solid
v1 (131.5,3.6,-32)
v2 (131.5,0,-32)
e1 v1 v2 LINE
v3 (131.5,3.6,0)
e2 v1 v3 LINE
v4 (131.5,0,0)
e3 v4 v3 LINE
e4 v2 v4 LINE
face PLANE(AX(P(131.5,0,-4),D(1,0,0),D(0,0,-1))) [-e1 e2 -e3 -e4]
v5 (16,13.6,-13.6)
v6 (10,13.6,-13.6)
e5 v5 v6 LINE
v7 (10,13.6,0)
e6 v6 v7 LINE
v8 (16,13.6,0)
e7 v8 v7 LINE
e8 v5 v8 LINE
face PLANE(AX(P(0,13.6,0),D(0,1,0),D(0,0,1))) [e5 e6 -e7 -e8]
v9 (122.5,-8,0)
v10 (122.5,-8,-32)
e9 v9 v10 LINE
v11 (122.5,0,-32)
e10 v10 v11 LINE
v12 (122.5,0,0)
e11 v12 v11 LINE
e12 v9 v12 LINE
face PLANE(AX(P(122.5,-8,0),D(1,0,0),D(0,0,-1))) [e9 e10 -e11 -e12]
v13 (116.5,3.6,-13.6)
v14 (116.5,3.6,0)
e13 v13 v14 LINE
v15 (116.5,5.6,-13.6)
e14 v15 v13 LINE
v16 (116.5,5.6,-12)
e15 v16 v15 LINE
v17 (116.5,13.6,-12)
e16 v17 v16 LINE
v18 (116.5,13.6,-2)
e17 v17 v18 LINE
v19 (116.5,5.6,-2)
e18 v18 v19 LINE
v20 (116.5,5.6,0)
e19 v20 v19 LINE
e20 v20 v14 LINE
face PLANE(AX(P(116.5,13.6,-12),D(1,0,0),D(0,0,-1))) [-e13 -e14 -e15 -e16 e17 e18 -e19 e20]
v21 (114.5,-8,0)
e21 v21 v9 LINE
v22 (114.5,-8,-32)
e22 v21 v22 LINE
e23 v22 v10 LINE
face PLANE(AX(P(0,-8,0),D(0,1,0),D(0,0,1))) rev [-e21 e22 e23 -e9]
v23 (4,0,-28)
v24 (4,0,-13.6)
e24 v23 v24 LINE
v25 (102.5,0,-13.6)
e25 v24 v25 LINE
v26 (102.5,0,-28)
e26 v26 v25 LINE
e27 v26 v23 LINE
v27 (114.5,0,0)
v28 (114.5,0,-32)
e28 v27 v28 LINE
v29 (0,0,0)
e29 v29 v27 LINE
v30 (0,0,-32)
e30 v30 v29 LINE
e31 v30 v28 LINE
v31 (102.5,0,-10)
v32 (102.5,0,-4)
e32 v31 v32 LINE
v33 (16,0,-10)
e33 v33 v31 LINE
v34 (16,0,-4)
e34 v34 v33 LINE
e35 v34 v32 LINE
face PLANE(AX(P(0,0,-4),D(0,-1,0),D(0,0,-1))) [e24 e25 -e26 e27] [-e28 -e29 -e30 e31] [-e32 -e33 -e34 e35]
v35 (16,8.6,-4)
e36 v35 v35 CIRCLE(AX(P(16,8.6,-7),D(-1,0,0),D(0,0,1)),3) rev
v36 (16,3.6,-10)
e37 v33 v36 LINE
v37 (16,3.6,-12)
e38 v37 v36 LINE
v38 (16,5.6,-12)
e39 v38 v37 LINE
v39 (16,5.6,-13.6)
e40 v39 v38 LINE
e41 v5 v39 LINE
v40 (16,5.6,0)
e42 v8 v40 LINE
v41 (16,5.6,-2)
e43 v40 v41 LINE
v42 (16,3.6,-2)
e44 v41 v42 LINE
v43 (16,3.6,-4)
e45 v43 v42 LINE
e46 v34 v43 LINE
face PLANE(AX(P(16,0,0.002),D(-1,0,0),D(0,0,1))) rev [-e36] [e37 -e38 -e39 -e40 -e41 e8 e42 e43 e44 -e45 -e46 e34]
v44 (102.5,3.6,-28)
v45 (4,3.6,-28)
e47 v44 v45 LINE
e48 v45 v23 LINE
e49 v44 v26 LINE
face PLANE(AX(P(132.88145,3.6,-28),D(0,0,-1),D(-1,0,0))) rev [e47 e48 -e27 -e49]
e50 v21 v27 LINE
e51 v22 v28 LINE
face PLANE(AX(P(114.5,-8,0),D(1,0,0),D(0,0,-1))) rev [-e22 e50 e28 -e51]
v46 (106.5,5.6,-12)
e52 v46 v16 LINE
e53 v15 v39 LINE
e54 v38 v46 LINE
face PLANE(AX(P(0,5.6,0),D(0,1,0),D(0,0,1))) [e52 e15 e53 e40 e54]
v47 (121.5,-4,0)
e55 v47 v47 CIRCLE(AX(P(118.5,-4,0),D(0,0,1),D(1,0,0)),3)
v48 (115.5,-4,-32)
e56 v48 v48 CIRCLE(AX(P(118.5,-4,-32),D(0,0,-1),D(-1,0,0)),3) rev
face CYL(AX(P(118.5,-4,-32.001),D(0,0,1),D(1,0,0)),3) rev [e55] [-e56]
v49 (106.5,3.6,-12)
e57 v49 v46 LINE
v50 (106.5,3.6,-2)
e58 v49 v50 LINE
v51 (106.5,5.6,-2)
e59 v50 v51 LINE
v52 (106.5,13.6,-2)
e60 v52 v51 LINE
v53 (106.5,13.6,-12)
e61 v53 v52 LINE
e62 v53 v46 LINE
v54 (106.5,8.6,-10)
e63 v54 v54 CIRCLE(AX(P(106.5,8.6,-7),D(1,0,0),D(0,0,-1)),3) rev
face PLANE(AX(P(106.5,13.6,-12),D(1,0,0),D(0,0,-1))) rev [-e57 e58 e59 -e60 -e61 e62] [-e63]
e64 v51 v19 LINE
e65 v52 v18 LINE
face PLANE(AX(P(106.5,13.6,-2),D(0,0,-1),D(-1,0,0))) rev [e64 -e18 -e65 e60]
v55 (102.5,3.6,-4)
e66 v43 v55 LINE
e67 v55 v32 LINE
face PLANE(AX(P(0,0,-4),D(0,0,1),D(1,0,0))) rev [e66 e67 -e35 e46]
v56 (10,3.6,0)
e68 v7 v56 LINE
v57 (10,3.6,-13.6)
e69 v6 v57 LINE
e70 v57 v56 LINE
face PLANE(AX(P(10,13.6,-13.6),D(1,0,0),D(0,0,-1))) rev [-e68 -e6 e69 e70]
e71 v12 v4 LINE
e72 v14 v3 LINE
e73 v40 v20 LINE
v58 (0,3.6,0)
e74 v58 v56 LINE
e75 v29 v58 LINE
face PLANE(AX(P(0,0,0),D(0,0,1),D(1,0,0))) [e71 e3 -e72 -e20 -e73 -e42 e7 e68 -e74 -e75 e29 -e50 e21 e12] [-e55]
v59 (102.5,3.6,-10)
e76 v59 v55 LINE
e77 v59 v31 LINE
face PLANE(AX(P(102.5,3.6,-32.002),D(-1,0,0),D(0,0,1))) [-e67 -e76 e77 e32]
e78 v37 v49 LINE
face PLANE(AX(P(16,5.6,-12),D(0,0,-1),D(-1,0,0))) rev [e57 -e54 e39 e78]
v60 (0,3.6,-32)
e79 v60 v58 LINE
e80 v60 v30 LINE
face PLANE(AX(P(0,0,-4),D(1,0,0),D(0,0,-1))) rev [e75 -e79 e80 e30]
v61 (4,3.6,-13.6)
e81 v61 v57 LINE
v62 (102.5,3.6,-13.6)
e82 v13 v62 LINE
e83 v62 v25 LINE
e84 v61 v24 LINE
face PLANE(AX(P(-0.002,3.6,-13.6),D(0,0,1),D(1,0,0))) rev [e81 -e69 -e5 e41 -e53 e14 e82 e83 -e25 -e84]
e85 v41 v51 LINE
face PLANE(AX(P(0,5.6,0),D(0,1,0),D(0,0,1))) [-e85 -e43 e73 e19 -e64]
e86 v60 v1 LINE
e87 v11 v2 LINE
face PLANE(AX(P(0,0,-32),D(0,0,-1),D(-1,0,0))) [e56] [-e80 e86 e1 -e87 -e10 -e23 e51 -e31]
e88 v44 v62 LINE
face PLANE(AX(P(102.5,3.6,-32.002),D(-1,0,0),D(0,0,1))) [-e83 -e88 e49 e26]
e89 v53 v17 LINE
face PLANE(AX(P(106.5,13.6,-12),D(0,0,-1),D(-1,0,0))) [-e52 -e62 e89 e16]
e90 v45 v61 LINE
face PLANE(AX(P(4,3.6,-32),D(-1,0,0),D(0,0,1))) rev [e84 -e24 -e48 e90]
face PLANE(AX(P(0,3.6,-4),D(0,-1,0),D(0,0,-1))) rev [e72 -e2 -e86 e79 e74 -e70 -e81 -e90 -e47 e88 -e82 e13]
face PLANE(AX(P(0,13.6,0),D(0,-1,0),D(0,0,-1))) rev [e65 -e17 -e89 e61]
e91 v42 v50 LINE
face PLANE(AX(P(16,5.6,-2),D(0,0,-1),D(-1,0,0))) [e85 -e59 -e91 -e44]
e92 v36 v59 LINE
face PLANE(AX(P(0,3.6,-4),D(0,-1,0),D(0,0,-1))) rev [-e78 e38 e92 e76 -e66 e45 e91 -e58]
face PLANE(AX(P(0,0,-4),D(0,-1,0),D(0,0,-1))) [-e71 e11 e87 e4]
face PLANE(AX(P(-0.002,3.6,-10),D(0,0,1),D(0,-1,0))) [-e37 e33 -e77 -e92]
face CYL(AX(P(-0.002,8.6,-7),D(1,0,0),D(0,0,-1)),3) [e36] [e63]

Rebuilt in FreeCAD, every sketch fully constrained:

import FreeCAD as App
import Part
import Sketcher
Q = App.Units.Quantity

doc = App.newDocument("Part")
body = doc.addObject("PartDesign::Body", "Body")

sketch1 = body.newObject("Sketcher::SketchObject", "Sketch")
sketch1.AttachmentSupport = (doc.getObject("XY_Plane"), [""])
sketch1.MapMode = "FlatFace"
sketch1.addGeometry([
    Part.LineSegment(App.Vector(0, 3.6, 0), App.Vector(0, 0, 0)),
    Part.LineSegment(App.Vector(0, 0, 0), App.Vector(131.5, 0, 0)),
    Part.LineSegment(App.Vector(131.5, 0, 0), App.Vector(131.5, 3.6, 0)),
    Part.LineSegment(App.Vector(131.5, 3.6, 0), App.Vector(0, 3.6, 0)),
], False)
sketch1.addConstraint([
    Sketcher.Constraint("Coincident", 0, 2, 1, 1),
    Sketcher.Constraint("Coincident", 1, 2, 2, 1),
    Sketcher.Constraint("Coincident", 2, 2, 3, 1),
    Sketcher.Constraint("Coincident", 3, 2, 0, 1),
    Sketcher.Constraint("Vertical", 0),
    Sketcher.Constraint("Horizontal", 1),
    Sketcher.Constraint("Vertical", 2),
    Sketcher.Constraint("Horizontal", 3),
    Sketcher.Constraint("Coincident", 0, 2, -1, 1),
    Sketcher.Constraint("DistanceX", 1, 1, 1, 2, Q("131.5 mm")),
    Sketcher.Constraint("DistanceY", 0, 2, 0, 1, Q("3.6 mm")),
])
pad1 = body.newObject("PartDesign::Pad", "Pad")
pad1.Profile = sketch1
pad1.Length = 4
pad1.Reversed = True

sketch2 = body.newObject("Sketcher::SketchObject", "Sketch001")
sketch2.AttachmentSupport = (doc.getObject("XY_Plane"), [""])
sketch2.MapMode = "FlatFace"
sketch2.AttachmentOffset = App.Placement(App.Vector(0, 0, -4), App.Rotation())
sketch2.addGeometry([
    Part.LineSegment(App.Vector(4, 3.6, 0), App.Vector(4, 0, 0)),
    Part.LineSegment(App.Vector(4, 0, 0), App.Vector(0, 0, 0)),
    Part.LineSegment(App.Vector(0, 0, 0), App.Vector(0, 3.6, 0)),
    Part.LineSegment(App.Vector(0, 3.6, 0), App.Vector(4, 3.6, 0)),
], False)
sketch2.addConstraint([
    Sketcher.Constraint("Coincident", 0, 2, 1, 1),
    Sketcher.Constraint("Coincident", 1, 2, 2, 1),
    Sketcher.Constraint("Coincident", 2, 2, 3, 1),
    Sketcher.Constraint("Coincident", 3, 2, 0, 1),
    Sketcher.Constraint("Vertical", 0),
    Sketcher.Constraint("Horizontal", 1),
    Sketcher.Constraint("Vertical", 2),
    Sketcher.Constraint("Horizontal", 3),
    Sketcher.Constraint("Coincident", 1, 2, -1, 1),
    Sketcher.Constraint("DistanceX", 1, 2, 1, 1, Q("4 mm")),
    Sketcher.Constraint("DistanceY", 0, 2, 0, 1, Q("3.6 mm")),
])
pad2 = body.newObject("PartDesign::Pad", "Pad001")
pad2.Profile = sketch2
pad2.Length = 28
pad2.Reversed = True

sketch3 = body.newObject("Sketcher::SketchObject", "Sketch002")
sketch3.AttachmentSupport = (doc.getObject("XY_Plane"), [""])
sketch3.MapMode = "FlatFace"
sketch3.AttachmentOffset = App.Placement(App.Vector(0, 0, -4), App.Rotation())
sketch3.addGeometry([
    Part.LineSegment(App.Vector(131.5, 3.6, 0), App.Vector(131.5, 0, 0)),
    Part.LineSegment(App.Vector(131.5, 0, 0), App.Vector(127.5, 0, 0)),
    Part.LineSegment(App.Vector(127.5, 0, 0), App.Vector(127.5, 3.6, 0)),
    Part.LineSegment(App.Vector(127.5, 3.6, 0), App.Vector(131.5, 3.6, 0)),
], False)
sketch3.addConstraint([
    Sketcher.Constraint("Coincident", 0, 2, 1, 1),
    Sketcher.Constraint("Coincident", 1, 2, 2, 1),
    Sketcher.Constraint("Coincident", 2, 2, 3, 1),
    Sketcher.Constraint("Coincident", 3, 2, 0, 1),
    Sketcher.Constraint("Vertical", 0),
    Sketcher.Constraint("Horizontal", 1),
    Sketcher.Constraint("Vertical", 2),
    Sketcher.Constraint("Horizontal", 3),
    Sketcher.Constraint("PointOnObject", 0, 2, -1),
    Sketcher.Constraint("DistanceX", 1, 2, 1, 1, Q("4 mm")),
    Sketcher.Constraint("DistanceY", 0, 2, 0, 1, Q("3.6 mm")),
    Sketcher.Constraint("DistanceX", -1, 1, 0, 2, Q("131.5 mm")),
])
pad3 = body.newObject("PartDesign::Pad", "Pad002")
pad3.Profile = sketch3
pad3.Length = 28
pad3.Reversed = True

sketch4 = body.newObject("Sketcher::SketchObject", "Sketch003")
sketch4.AttachmentSupport = (doc.getObject("YZ_Plane"), [""])
sketch4.MapMode = "FlatFace"
sketch4.AttachmentOffset = App.Placement(App.Vector(0, 0, 4), App.Rotation())
sketch4.addGeometry([
    Part.LineSegment(App.Vector(3.6, -28, 0), App.Vector(0, -28, 0)),
    Part.LineSegment(App.Vector(0, -28, 0), App.Vector(0, -32, 0)),
    Part.LineSegment(App.Vector(0, -32, 0), App.Vector(3.6, -32, 0)),
    Part.LineSegment(App.Vector(3.6, -32, 0), App.Vector(3.6, -28, 0)),
], False)
sketch4.addConstraint([
    Sketcher.Constraint("Coincident", 0, 2, 1, 1),
    Sketcher.Constraint("Coincident", 1, 2, 2, 1),
    Sketcher.Constraint("Coincident", 2, 2, 3, 1),
    Sketcher.Constraint("Coincident", 3, 2, 0, 1),
    Sketcher.Constraint("Horizontal", 0),
    Sketcher.Constraint("Vertical", 1),
    Sketcher.Constraint("Horizontal", 2),
    Sketcher.Constraint("Vertical", 3),
    Sketcher.Constraint("PointOnObject", 0, 2, -2),
    Sketcher.Constraint("DistanceY", 1, 2, 1, 1, Q("4 mm")),
    Sketcher.Constraint("DistanceX", 0, 2, 0, 1, Q("3.6 mm")),
    Sketcher.Constraint("DistanceY", 0, 2, -1, 1, Q("28 mm")),
])
pad4 = body.newObject("PartDesign::Pad", "Pad003")
pad4.Profile = sketch4
pad4.Length = 123.5

sketch5 = body.newObject("Sketcher::SketchObject", "Sketch004")
sketch5.AttachmentSupport = (doc.getObject("XZ_Plane"), [""])
sketch5.MapMode = "FlatFace"
sketch5.addGeometry([
    Part.LineSegment(App.Vector(114, 0, 0), App.Vector(114, -32, 0)),
    Part.LineSegment(App.Vector(114, -32, 0), App.Vector(122, -32, 0)),
    Part.LineSegment(App.Vector(122, -32, 0), App.Vector(122, 0, 0)),
    Part.LineSegment(App.Vector(122, 0, 0), App.Vector(114, 0, 0)),
], False)
sketch5.addConstraint([
    Sketcher.Constraint("Coincident", 0, 2, 1, 1),
    Sketcher.Constraint("Coincident", 1, 2, 2, 1),
    Sketcher.Constraint("Coincident", 2, 2, 3, 1),
    Sketcher.Constraint("Coincident", 3, 2, 0, 1),
    Sketcher.Constraint("Vertical", 0),
    Sketcher.Constraint("Horizontal", 1),
    Sketcher.Constraint("Vertical", 2),
    Sketcher.Constraint("Horizontal", 3),
    Sketcher.Constraint("PointOnObject", 2, 2, -1),
    Sketcher.Constraint("DistanceX", 1, 1, 1, 2, Q("8 mm")),
    Sketcher.Constraint("DistanceY", 0, 2, 0, 1, Q("32 mm")),
    Sketcher.Constraint("DistanceX", -1, 1, 0, 2, Q("114.5 mm")),
])
pad5 = body.newObject("PartDesign::Pad", "Pad004")
pad5.Profile = sketch5
pad5.Length = 8

sketch6 = body.newObject("Sketcher::SketchObject", "Sketch005")
sketch6.AttachmentSupport = (doc.getObject("XY_Plane"), [""])
sketch6.MapMode = "FlatFace"
sketch6.addGeometry(Part.Circle(App.Vector(118.5, -4, 0), App.Vector(0, 0, 1), 3), False)
sketch6.addConstraint([
    Sketcher.Constraint("Diameter", 0, Q("6 mm")),
    Sketcher.Constraint("DistanceY", 0, 3, -1, 1, Q("4 mm")),
    Sketcher.Constraint("DistanceX", -1, 1, 0, 3, Q("118.5 mm")),
])
pocket1 = body.newObject("PartDesign::Pocket", "Pocket")
pocket1.Profile = sketch6
pocket1.Type = "UpToFirst"

sketch7 = body.newObject("Sketcher::SketchObject", "Sketch006")
sketch7.AttachmentSupport = (doc.getObject("XY_Plane"), [""])
sketch7.MapMode = "FlatFace"
sketch7.AttachmentOffset = App.Placement(App.Vector(0, 0, -4), App.Rotation())
sketch7.addGeometry([
    Part.LineSegment(App.Vector(127.5, 3.6, 0), App.Vector(127.5, 0, 0)),
    Part.LineSegment(App.Vector(127.5, 0, 0), App.Vector(102.5, 0, 0)),
    Part.LineSegment(App.Vector(102.5, 0, 0), App.Vector(102.5, 3.6, 0)),
    Part.LineSegment(App.Vector(102.5, 3.6, 0), App.Vector(127.5, 3.6, 0)),
], False)
sketch7.addConstraint([
    Sketcher.Constraint("Coincident", 0, 2, 1, 1),
    Sketcher.Constraint("Coincident", 1, 2, 2, 1),
    Sketcher.Constraint("Coincident", 2, 2, 3, 1),
    Sketcher.Constraint("Coincident", 3, 2, 0, 1),
    Sketcher.Constraint("Vertical", 0),
    Sketcher.Constraint("Horizontal", 1),
    Sketcher.Constraint("Vertical", 2),
    Sketcher.Constraint("Horizontal", 3),
    Sketcher.Constraint("PointOnObject", 0, 2, -1),
    Sketcher.Constraint("DistanceX", 1, 2, 1, 1, Q("25 mm")),
    Sketcher.Constraint("DistanceY", 0, 2, 0, 1, Q("3.6 mm")),
    Sketcher.Constraint("DistanceX", -1, 1, 0, 2, Q("127.5 mm")),
])
pad6 = body.newObject("PartDesign::Pad", "Pad005")
pad6.Profile = sketch7
pad6.Type = "UpToFirst"
pad6.Reversed = True

sketch8 = body.newObject("Sketcher::SketchObject", "Sketch007")
sketch8.AttachmentSupport = (doc.getObject("YZ_Plane"), [""])
sketch8.MapMode = "FlatFace"
sketch8.AttachmentOffset = App.Placement(App.Vector(0, 0, 102.5), App.Rotation())
sketch8.addGeometry([
    Part.LineSegment(App.Vector(3.6, -13.6, 0), App.Vector(0, -13.6, 0)),
    Part.LineSegment(App.Vector(0, -13.6, 0), App.Vector(0, -10, 0)),
    Part.LineSegment(App.Vector(0, -10, 0), App.Vector(3.6, -10, 0)),
    Part.LineSegment(App.Vector(3.6, -10, 0), App.Vector(3.6, -13.6, 0)),
], False)
sketch8.addConstraint([
    Sketcher.Constraint("Coincident", 0, 2, 1, 1),
    Sketcher.Constraint("Coincident", 1, 2, 2, 1),
    Sketcher.Constraint("Coincident", 2, 2, 3, 1),
    Sketcher.Constraint("Coincident", 3, 2, 0, 1),
    Sketcher.Constraint("Horizontal", 0),
    Sketcher.Constraint("Vertical", 1),
    Sketcher.Constraint("Horizontal", 2),
    Sketcher.Constraint("Vertical", 3),
    Sketcher.Constraint("PointOnObject", 0, 2, -2),
    Sketcher.Constraint("Equal", 2, 1),
    Sketcher.Constraint("DistanceX", 0, 2, 0, 1, Q("3.6 mm")),
    Sketcher.Constraint("DistanceY", 1, 2, -1, 1, Q("10 mm")),
])
pad7 = body.newObject("PartDesign::Pad", "Pad006")
pad7.Profile = sketch8
pad7.Type = "UpToFirst"
pad7.Reversed = True

sketch9 = body.newObject("Sketcher::SketchObject", "Sketch008")
sketch9.AttachmentSupport = (doc.getObject("XZ_Plane"), [""])
sketch9.MapMode = "FlatFace"
sketch9.AttachmentOffset = App.Placement(App.Vector(0, 0, -3.6), App.Rotation())
sketch9.addGeometry([
    Part.LineSegment(App.Vector(106, -12, 0), App.Vector(106, -2, 0)),
    Part.LineSegment(App.Vector(106, -2, 0), App.Vector(116, -2, 0)),
    Part.LineSegment(App.Vector(116, -2, 0), App.Vector(116, -12, 0)),
    Part.LineSegment(App.Vector(116, -12, 0), App.Vector(106, -12, 0)),
], False)
sketch9.addConstraint([
    Sketcher.Constraint("Coincident", 0, 2, 1, 1),
    Sketcher.Constraint("Coincident", 1, 2, 2, 1),
    Sketcher.Constraint("Coincident", 2, 2, 3, 1),
    Sketcher.Constraint("Coincident", 3, 2, 0, 1),
    Sketcher.Constraint("Vertical", 0),
    Sketcher.Constraint("Horizontal", 1),
    Sketcher.Constraint("Vertical", 2),
    Sketcher.Constraint("Horizontal", 3),
    Sketcher.Constraint("Equal", 3, 0),
    Sketcher.Constraint("DistanceX", 1, 1, 1, 2, Q("10 mm")),
    Sketcher.Constraint("DistanceY", 0, 2, -1, 1, Q("2 mm")),
    Sketcher.Constraint("DistanceX", -1, 1, 0, 2, Q("106.5 mm")),
])
pad8 = body.newObject("PartDesign::Pad", "Pad007")
pad8.Profile = sketch9
pad8.Length = 10
pad8.Reversed = True

sketch10 = body.newObject("Sketcher::SketchObject", "Sketch009")
sketch10.AttachmentSupport = (doc.getObject("XY_Plane"), [""])
sketch10.MapMode = "FlatFace"
sketch10.AttachmentOffset = App.Placement(App.Vector(0, 0, -10), App.Rotation())
sketch10.addGeometry([
    Part.LineSegment(App.Vector(4, 3.6, 0), App.Vector(4, 0, 0)),
    Part.LineSegment(App.Vector(4, 0, 0), App.Vector(16, 0, 0)),
    Part.LineSegment(App.Vector(16, 0, 0), App.Vector(16, 3.6, 0)),
    Part.LineSegment(App.Vector(16, 3.6, 0), App.Vector(4, 3.6, 0)),
], False)
sketch10.addConstraint([
    Sketcher.Constraint("Coincident", 0, 2, 1, 1),
    Sketcher.Constraint("Coincident", 1, 2, 2, 1),
    Sketcher.Constraint("Coincident", 2, 2, 3, 1),
    Sketcher.Constraint("Coincident", 3, 2, 0, 1),
    Sketcher.Constraint("Vertical", 0),
    Sketcher.Constraint("Horizontal", 1),
    Sketcher.Constraint("Vertical", 2),
    Sketcher.Constraint("Horizontal", 3),
    Sketcher.Constraint("PointOnObject", 0, 2, -1),
    Sketcher.Constraint("DistanceX", 1, 1, 1, 2, Q("12 mm")),
    Sketcher.Constraint("DistanceY", 0, 2, 0, 1, Q("3.6 mm")),
    Sketcher.Constraint("DistanceX", -1, 1, 0, 2, Q("4 mm")),
])
pad9 = body.newObject("PartDesign::Pad", "Pad008")
pad9.Profile = sketch10
pad9.Type = "UpToFirst"

sketch11 = body.newObject("Sketcher::SketchObject", "Sketch010")
sketch11.AttachmentSupport = (doc.getObject("XZ_Plane"), [""])
sketch11.MapMode = "FlatFace"
sketch11.AttachmentOffset = App.Placement(App.Vector(0, 0, -3.6), App.Rotation())
sketch11.addGeometry([
    Part.LineSegment(App.Vector(10, -14, 0), App.Vector(10, 0, 0)),
    Part.LineSegment(App.Vector(10, 0, 0), App.Vector(16, 0, 0)),
    Part.LineSegment(App.Vector(16, 0, 0), App.Vector(16, -14, 0)),
    Part.LineSegment(App.Vector(16, -14, 0), App.Vector(10, -14, 0)),
], False)
sketch11.addConstraint([
    Sketcher.Constraint("Coincident", 0, 2, 1, 1),
    Sketcher.Constraint("Coincident", 1, 2, 2, 1),
    Sketcher.Constraint("Coincident", 2, 2, 3, 1),
    Sketcher.Constraint("Coincident", 3, 2, 0, 1),
    Sketcher.Constraint("Vertical", 0),
    Sketcher.Constraint("Horizontal", 1),
    Sketcher.Constraint("Vertical", 2),
    Sketcher.Constraint("Horizontal", 3),
    Sketcher.Constraint("PointOnObject", 0, 2, -1),
    Sketcher.Constraint("DistanceX", 1, 1, 1, 2, Q("6 mm")),
    Sketcher.Constraint("DistanceY", 0, 1, 0, 2, Q("13.6 mm")),
    Sketcher.Constraint("DistanceX", -1, 1, 0, 2, Q("10 mm")),
])
pad10 = body.newObject("PartDesign::Pad", "Pad009")
pad10.Profile = sketch11
pad10.Length = 10
pad10.Reversed = True

sketch12 = body.newObject("Sketcher::SketchObject", "Sketch011")
sketch12.AttachmentSupport = (doc.getObject("YZ_Plane"), [""])
sketch12.MapMode = "FlatFace"
sketch12.AttachmentOffset = App.Placement(App.Vector(0, 0, 106.5), App.Rotation())
sketch12.addGeometry(Part.Circle(App.Vector(8.6, -7, 0), App.Vector(0, 0, 1), 3), False)
sketch12.addConstraint([
    Sketcher.Constraint("Diameter", 0, Q("6 mm")),
    Sketcher.Constraint("DistanceY", 0, 3, -1, 1, Q("7 mm")),
    Sketcher.Constraint("DistanceX", -1, 1, 0, 3, Q("8.6 mm")),
])
pad11 = body.newObject("PartDesign::Pad", "Pad010")
pad11.Profile = sketch12
pad11.Type = "UpToFirst"
pad11.Reversed = True

sketch13 = body.newObject("Sketcher::SketchObject", "Sketch012")
sketch13.AttachmentSupport = (doc.getObject("XZ_Plane"), [""])
sketch13.MapMode = "FlatFace"
sketch13.AttachmentOffset = App.Placement(App.Vector(0, 0, -3.6), App.Rotation())
sketch13.addGeometry([
    Part.LineSegment(App.Vector(16, -2, 0), App.Vector(16, 0, 0)),
    Part.LineSegment(App.Vector(16, 0, 0), App.Vector(116.5, 0, 0)),
    Part.LineSegment(App.Vector(116.5, 0, 0), App.Vector(116.5, -2, 0)),
    Part.LineSegment(App.Vector(116.5, -2, 0), App.Vector(16, -2, 0)),
], False)
sketch13.addConstraint([
    Sketcher.Constraint("Coincident", 0, 2, 1, 1),
    Sketcher.Constraint("Coincident", 1, 2, 2, 1),
    Sketcher.Constraint("Coincident", 2, 2, 3, 1),
    Sketcher.Constraint("Coincident", 3, 2, 0, 1),
    Sketcher.Constraint("Vertical", 0),
    Sketcher.Constraint("Horizontal", 1),
    Sketcher.Constraint("Vertical", 2),
    Sketcher.Constraint("Horizontal", 3),
    Sketcher.Constraint("PointOnObject", 0, 2, -1),
    Sketcher.Constraint("DistanceY", 0, 1, 0, 2, Q("2 mm")),
    Sketcher.Constraint("DistanceX", 1, 1, 1, 2, Q("100.5 mm")),
    Sketcher.Constraint("DistanceX", -1, 1, 0, 2, Q("16 mm")),
])
pad12 = body.newObject("PartDesign::Pad", "Pad011")
pad12.Profile = sketch13
pad12.Length = 2
pad12.Reversed = True

sketch14 = body.newObject("Sketcher::SketchObject", "Sketch013")
sketch14.AttachmentSupport = (doc.getObject("XZ_Plane"), [""])
sketch14.MapMode = "FlatFace"
sketch14.AttachmentOffset = App.Placement(App.Vector(0, 0, -3.6), App.Rotation())
sketch14.addGeometry([
    Part.LineSegment(App.Vector(16, -13.6, 0), App.Vector(16, -12, 0)),
    Part.LineSegment(App.Vector(16, -12, 0), App.Vector(116.5, -12, 0)),
    Part.LineSegment(App.Vector(116.5, -12, 0), App.Vector(116.5, -13.6, 0)),
    Part.LineSegment(App.Vector(116.5, -13.6, 0), App.Vector(16, -13.6, 0)),
], False)
sketch14.addConstraint([
    Sketcher.Constraint("Coincident", 0, 2, 1, 1),
    Sketcher.Constraint("Coincident", 1, 2, 2, 1),
    Sketcher.Constraint("Coincident", 2, 2, 3, 1),
    Sketcher.Constraint("Coincident", 3, 2, 0, 1),
    Sketcher.Constraint("Vertical", 0),
    Sketcher.Constraint("Horizontal", 1),
    Sketcher.Constraint("Vertical", 2),
    Sketcher.Constraint("Horizontal", 3),
    Sketcher.Constraint("DistanceX", 1, 1, 1, 2, Q("100.5 mm")),
    Sketcher.Constraint("DistanceY", 0, 1, 0, 2, Q("1.6 mm")),
    Sketcher.Constraint("DistanceX", -1, 1, 0, 2, Q("16 mm")),
    Sketcher.Constraint("DistanceY", 0, 2, -1, 1, Q("12 mm")),
])
pad13 = body.newObject("PartDesign::Pad", "Pad012")
pad13.Profile = sketch14
pad13.Length = 2
pad13.Reversed = True

doc.recompute()
